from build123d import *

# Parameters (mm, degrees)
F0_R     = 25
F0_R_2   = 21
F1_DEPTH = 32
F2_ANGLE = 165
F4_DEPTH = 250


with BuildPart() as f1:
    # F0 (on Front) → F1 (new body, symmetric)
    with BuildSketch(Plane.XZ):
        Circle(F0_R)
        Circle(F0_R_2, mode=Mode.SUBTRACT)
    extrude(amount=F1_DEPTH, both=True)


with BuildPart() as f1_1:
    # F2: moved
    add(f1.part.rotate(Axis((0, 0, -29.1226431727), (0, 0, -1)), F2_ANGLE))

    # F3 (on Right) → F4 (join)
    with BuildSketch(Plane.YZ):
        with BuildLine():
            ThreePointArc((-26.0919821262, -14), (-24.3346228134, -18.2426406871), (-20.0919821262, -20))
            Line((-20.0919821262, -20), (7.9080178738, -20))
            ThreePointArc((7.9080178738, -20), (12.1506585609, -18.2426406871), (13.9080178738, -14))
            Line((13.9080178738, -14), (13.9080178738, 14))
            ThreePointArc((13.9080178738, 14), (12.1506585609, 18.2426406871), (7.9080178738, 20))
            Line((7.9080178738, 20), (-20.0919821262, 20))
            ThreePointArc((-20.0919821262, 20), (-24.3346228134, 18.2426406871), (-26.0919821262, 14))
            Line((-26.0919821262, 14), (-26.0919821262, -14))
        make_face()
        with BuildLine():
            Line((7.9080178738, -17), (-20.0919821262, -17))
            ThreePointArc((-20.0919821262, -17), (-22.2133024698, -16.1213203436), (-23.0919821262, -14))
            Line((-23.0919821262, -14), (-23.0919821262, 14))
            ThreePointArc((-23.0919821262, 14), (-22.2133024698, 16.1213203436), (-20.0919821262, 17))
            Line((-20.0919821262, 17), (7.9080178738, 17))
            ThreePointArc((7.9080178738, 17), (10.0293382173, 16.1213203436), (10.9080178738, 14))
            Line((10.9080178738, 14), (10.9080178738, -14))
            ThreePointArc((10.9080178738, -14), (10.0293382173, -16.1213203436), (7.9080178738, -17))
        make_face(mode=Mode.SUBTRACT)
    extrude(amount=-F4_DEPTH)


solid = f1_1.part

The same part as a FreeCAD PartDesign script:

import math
import FreeCAD as App
import Part
import Sketcher

V = App.Vector

doc = App.newDocument("Part")
body = doc.addObject("PartDesign::Body", "Body")

sketch1 = body.newObject("Sketcher::SketchObject", "Sketch")
sketch1.AttachmentSupport = (doc.getObject("XZ_Plane"), [""])
sketch1.MapMode = "FlatFace"
sketch1.addGeometry(Part.Circle(V(0, 0, 0), V(0, 0, 1), 25), False)
sketch1.addGeometry(Part.Circle(V(0, 0, 0), V(0, 0, 1), 21), False)
sketch1.addConstraint(Sketcher.Constraint("Coincident", 0, 3, -1, 1))
sketch1.addConstraint(Sketcher.Constraint("Coincident", 1, 3, -1, 1))
sketch1.addConstraint(Sketcher.Constraint("Diameter", 0, 50.0))
sketch1.addConstraint(Sketcher.Constraint("Diameter", 1, 42.0))
pad1 = body.newObject("PartDesign::Pad", "Pad")
pad1.Profile = sketch1
pad1.Length = 64
pad1.Midplane = True
body2 = doc.addObject("PartDesign::Body", "Body001")
doc.recompute()

body.Placement = App.Placement(V(0, 0, 0), App.Rotation(V(0, 0, -1), 165))
boolean = body2.newObject("PartDesign::Boolean", "Boolean")
boolean.Type = "Fuse"
boolean.addObjects([body])

sketch2 = body2.newObject("Sketcher::SketchObject", "Sketch001")
sketch2.AttachmentSupport = (doc.getObject("YZ_Plane001"), [""])
sketch2.MapMode = "FlatFace"
sketch2.addGeometry(Part.ArcOfCircle(Part.Circle(V(-20.1, -14, 0), V(0, 0, 1), 6), math.radians(180), math.radians(270)), False)
sketch2.addGeometry(Part.LineSegment(V(-20.1, -20, 0), V(7.9, -20, 0)), False)
sketch2.addGeometry(Part.ArcOfCircle(Part.Circle(V(7.9, -14, 0), V(0, 0, 1), 6), math.radians(-90), math.radians(0)), False)
sketch2.addGeometry(Part.LineSegment(V(13.9, -14, 0), V(13.9, 14, 0)), False)
sketch2.addGeometry(Part.ArcOfCircle(Part.Circle(V(7.9, 14, 0), V(0, 0, 1), 6), math.radians(0), math.radians(90)), False)
sketch2.addGeometry(Part.LineSegment(V(7.9, 20, 0), V(-20.1, 20, 0)), False)
sketch2.addGeometry(Part.ArcOfCircle(Part.Circle(V(-20.1, 14, 0), V(0, 0, 1), 6), math.radians(90), math.radians(180)), False)
sketch2.addGeometry(Part.LineSegment(V(-26.1, 14, 0), V(-26.1, -14, 0)), False)
sketch2.addGeometry(Part.ArcOfCircle(Part.Circle(V(7.9, -14, 0), V(0, 0, 1), 3), math.radians(-90), math.radians(0)), False)
sketch2.addGeometry(Part.LineSegment(V(7.9, -17, 0), V(-20.1, -17, 0)), False)
sketch2.addGeometry(Part.ArcOfCircle(Part.Circle(V(-20.1, -14, 0), V(0, 0, 1), 3), math.radians(180), math.radians(270)), False)
sketch2.addGeometry(Part.LineSegment(V(-23.1, -14, 0), V(-23.1, 14, 0)), False)
sketch2.addGeometry(Part.ArcOfCircle(Part.Circle(V(-20.1, 14, 0), V(0, 0, 1), 3), math.radians(90), math.radians(180)), False)
sketch2.addGeometry(Part.LineSegment(V(-20.1, 17, 0), V(7.9, 17, 0)), False)
sketch2.addGeometry(Part.ArcOfCircle(Part.Circle(V(7.9, 14, 0), V(0, 0, 1), 3), math.radians(0), math.radians(90)), False)
sketch2.addGeometry(Part.LineSegment(V(10.9, 14, 0), V(10.9, -14, 0)), False)
sketch2.addConstraint(Sketcher.Constraint("Tangent", 0, 2, 1, 1))
sketch2.addConstraint(Sketcher.Constraint("Tangent", 1, 2, 2, 1))
sketch2.addConstraint(Sketcher.Constraint("Tangent", 2, 2, 3, 1))
sketch2.addConstraint(Sketcher.Constraint("Tangent", 3, 2, 4, 1))
sketch2.addConstraint(Sketcher.Constraint("Tangent", 4, 2, 5, 1))
sketch2.addConstraint(Sketcher.Constraint("Tangent", 5, 2, 6, 1))
sketch2.addConstraint(Sketcher.Constraint("Tangent", 6, 2, 7, 1))
sketch2.addConstraint(Sketcher.Constraint("Tangent", 7, 2, 0, 1))
sketch2.addConstraint(Sketcher.Constraint("Tangent", 8, 1, 9, 1))
sketch2.addConstraint(Sketcher.Constraint("Tangent", 9, 2, 10, 2))
sketch2.addConstraint(Sketcher.Constraint("Tangent", 10, 1, 11, 1))
sketch2.addConstraint(Sketcher.Constraint("Tangent", 11, 2, 12, 2))
sketch2.addConstraint(Sketcher.Constraint("Tangent", 12, 1, 13, 1))
sketch2.addConstraint(Sketcher.Constraint("Tangent", 13, 2, 14, 2))
sketch2.addConstraint(Sketcher.Constraint("Tangent", 14, 1, 15, 1))
sketch2.addConstraint(Sketcher.Constraint("Tangent", 15, 2, 8, 2))
sketch2.addConstraint(Sketcher.Constraint("Horizontal", 1))
sketch2.addConstraint(Sketcher.Constraint("Vertical", 3))
sketch2.addConstraint(Sketcher.Constraint("Horizontal", 5))
sketch2.addConstraint(Sketcher.Constraint("Vertical", 7))
sketch2.addConstraint(Sketcher.Constraint("Horizontal", 9))
sketch2.addConstraint(Sketcher.Constraint("Vertical", 11))
sketch2.addConstraint(Sketcher.Constraint("Horizontal", 13))
sketch2.addConstraint(Sketcher.Constraint("Vertical", 15))
sketch2.addConstraint(Sketcher.Constraint("Coincident", 8, 3, 2, 3))
sketch2.addConstraint(Sketcher.Constraint("Coincident", 10, 3, 0, 3))
sketch2.addConstraint(Sketcher.Constraint("Coincident", 12, 3, 6, 3))
sketch2.addConstraint(Sketcher.Constraint("Equal", 0, 2))
sketch2.addConstraint(Sketcher.Constraint("Equal", 2, 4))
sketch2.addConstraint(Sketcher.Constraint("Equal", 4, 6))
sketch2.addConstraint(Sketcher.Constraint("Equal", 12, 14))
sketch2.addConstraint(Sketcher.Constraint("Equal", 13, 3))
sketch2.addConstraint(Sketcher.Constraint("Radius", 0, 6.0))
sketch2.addConstraint(Sketcher.Constraint("Radius", 8, 3.0))
sketch2.addConstraint(Sketcher.Constraint("DistanceX", 1, 1, 1, 2, 28.0))
sketch2.addConstraint(Sketcher.Constraint("DistanceY", 0, 3, -1, 1, 14.0))
sketch2.addConstraint(Sketcher.Constraint("DistanceX", 0, 3, -1, 1, 20.091982))
pad2 = body2.newObject("PartDesign::Pad", "Pad001")
pad2.Profile = sketch2
pad2.Length = 250
pad2.Reversed = True

doc.recompute()
